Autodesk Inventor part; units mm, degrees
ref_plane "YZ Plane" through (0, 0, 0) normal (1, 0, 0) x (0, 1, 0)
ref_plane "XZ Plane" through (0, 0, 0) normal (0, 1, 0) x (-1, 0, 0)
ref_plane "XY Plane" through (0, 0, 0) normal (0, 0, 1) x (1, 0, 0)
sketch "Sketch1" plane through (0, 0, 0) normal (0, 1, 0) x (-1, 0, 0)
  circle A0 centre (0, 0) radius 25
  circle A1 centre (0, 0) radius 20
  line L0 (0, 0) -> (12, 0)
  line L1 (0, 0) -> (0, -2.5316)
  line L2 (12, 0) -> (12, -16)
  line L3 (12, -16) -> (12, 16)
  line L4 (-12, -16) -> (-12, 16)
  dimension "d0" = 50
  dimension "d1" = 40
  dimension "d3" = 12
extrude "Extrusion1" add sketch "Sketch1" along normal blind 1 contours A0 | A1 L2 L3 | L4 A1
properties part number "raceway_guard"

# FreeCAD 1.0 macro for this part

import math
import FreeCAD as App
import Part
import Sketcher
from FreeCAD import Vector
Q = App.Units.Quantity

doc = App.newDocument("Part")
body = doc.addObject("PartDesign::Body", "Body")

# Sketch on XZ plane
sketch1 = body.newObject("Sketcher::SketchObject", "Sketch")
sketch1.AttachmentSupport = (doc.getObject("XZ_Plane"), [""])
sketch1.MapMode = "FlatFace"
sketch1.addGeometry([
    Part.Circle(Vector(0, 0, 0), Vector(0, 0, 1), 25),  # 0
    Part.ArcOfCircle(Part.Circle(Vector(0, 0, 0), Vector(0, 0, 1), 20), math.radians(53.130102), math.radians(126.869898)),  # 1
    Part.LineSegment(Vector(-12, 16, 0), Vector(-12, -16, 0)),  # 2
    Part.ArcOfCircle(Part.Circle(Vector(0, 0, 0), Vector(0, 0, 1), 20), math.radians(-126.869898), math.radians(-53.130102)),  # 3
    Part.LineSegment(Vector(12, -16, 0), Vector(12, 16, 0)),  # 4
], False)
sketch1.addConstraint([
    Sketcher.Constraint("Coincident", 1, 2, 2, 1),
    Sketcher.Constraint("Coincident", 2, 2, 3, 1),
    Sketcher.Constraint("Coincident", 3, 2, 4, 1),
    Sketcher.Constraint("Coincident", 4, 2, 1, 1),
    Sketcher.Constraint("Vertical", 2),
    Sketcher.Constraint("Vertical", 4),
    Sketcher.Constraint("Coincident", 0, 3, -1, 1),
    Sketcher.Constraint("Coincident", 1, 3, -1, 1),
    Sketcher.Constraint("Coincident", 3, 3, -1, 1),
    Sketcher.Constraint("Equal", 1, 3),
    Sketcher.Constraint("Horizontal", 2, 2, 3, 2),
    Sketcher.Constraint("Diameter", 0, Q("50 mm")),
    Sketcher.Constraint("Radius", 1, Q("20 mm")),
    Sketcher.Constraint("DistanceX", 1, 2, -1, 1, Q("12 mm")),
])
pad1 = body.newObject("PartDesign::Pad", "Pad")
pad1.Profile = sketch1
pad1.Length = 1
pad1.Reversed = True

doc.recompute()
